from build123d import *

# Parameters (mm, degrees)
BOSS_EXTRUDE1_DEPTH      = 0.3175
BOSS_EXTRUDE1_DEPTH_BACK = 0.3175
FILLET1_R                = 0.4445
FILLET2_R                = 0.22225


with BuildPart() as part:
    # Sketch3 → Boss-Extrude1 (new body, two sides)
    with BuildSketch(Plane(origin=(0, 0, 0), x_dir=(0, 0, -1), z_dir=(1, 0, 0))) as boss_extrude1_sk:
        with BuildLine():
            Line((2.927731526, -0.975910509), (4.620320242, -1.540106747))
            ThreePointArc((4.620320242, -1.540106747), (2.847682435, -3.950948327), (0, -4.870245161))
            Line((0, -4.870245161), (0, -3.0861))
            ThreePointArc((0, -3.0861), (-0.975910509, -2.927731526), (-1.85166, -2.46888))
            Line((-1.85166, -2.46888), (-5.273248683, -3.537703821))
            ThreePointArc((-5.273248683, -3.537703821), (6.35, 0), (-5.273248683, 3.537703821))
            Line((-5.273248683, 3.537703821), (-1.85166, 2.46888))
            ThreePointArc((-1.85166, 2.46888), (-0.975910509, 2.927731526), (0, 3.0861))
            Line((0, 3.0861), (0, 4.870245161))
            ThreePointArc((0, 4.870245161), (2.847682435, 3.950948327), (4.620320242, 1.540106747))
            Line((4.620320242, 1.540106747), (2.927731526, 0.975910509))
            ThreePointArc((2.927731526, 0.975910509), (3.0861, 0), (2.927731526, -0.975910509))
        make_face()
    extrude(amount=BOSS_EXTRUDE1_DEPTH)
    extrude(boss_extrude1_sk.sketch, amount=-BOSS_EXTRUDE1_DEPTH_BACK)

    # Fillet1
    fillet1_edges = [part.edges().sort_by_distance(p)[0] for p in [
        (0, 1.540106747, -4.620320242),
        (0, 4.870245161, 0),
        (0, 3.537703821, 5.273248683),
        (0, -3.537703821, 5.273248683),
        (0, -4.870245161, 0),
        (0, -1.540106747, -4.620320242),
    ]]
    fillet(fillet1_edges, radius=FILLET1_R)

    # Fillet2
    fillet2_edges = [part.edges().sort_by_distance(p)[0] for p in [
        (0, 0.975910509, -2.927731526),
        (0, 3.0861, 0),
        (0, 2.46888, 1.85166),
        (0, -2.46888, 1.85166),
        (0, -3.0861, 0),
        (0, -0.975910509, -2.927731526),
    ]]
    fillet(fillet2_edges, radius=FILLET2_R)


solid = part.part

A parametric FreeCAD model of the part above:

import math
import FreeCAD as App
import Part
import Sketcher
from FreeCAD import Vector
Q = App.Units.Quantity


def edges_at(feature, points):
    """Names of the edges that pass closest to the given points."""
    edges = feature.Shape.Edges
    near = lambda p: min(range(len(edges)), key=lambda i: edges[i].distToShape(Part.Vertex(*p))[0])
    return sorted({f"Edge{near(p) + 1}" for p in points})

doc = App.newDocument("Part")
body = doc.addObject("PartDesign::Body", "Body")

# Sketch on YZ plane
sketch1 = body.newObject("Sketcher::SketchObject", "Sketch")
sketch1.AttachmentSupport = (doc.getObject("YZ_Plane"), [""])
sketch1.MapMode = "FlatFace"
sketch1.addGeometry([
    Part.LineSegment(Vector(-0.975911, -2.927732, 0), Vector(-1.540107, -4.62032, 0)),  # 0
    Part.ArcOfCircle(Part.Circle(Vector(0, 0, 0), Vector(0, 0, 1), 4.870245), math.radians(180), math.radians(251.565051)),  # 1
    Part.LineSegment(Vector(-4.870245, 0, 0), Vector(-3.0861, 0, 0)),  # 2
    Part.ArcOfCircle(Part.Circle(Vector(0, 0, 0), Vector(0, 0, 1), 3.0861), math.radians(143.130102), math.radians(180)),  # 3
    Part.LineSegment(Vector(-2.46888, 1.85166, 0), Vector(-3.537704, 5.273249, 0)),  # 4
    Part.ArcOfCircle(Part.Circle(Vector(0, 0, 0), Vector(0, 0, 1), 6.35), math.radians(123.856771), math.radians(416.143229)),  # 5
    Part.LineSegment(Vector(3.537704, 5.273249, 0), Vector(2.46888, 1.85166, 0)),  # 6
    Part.ArcOfCircle(Part.Circle(Vector(0, 0, 0), Vector(0, 0, 1), 3.0861), math.radians(0), math.radians(36.869898)),  # 7
    Part.LineSegment(Vector(3.0861, 0, 0), Vector(4.870245, 0, 0)),  # 8
    Part.ArcOfCircle(Part.Circle(Vector(0, 0, 0), Vector(0, 0, 1), 4.870245), math.radians(-71.565051), math.radians(0)),  # 9
    Part.LineSegment(Vector(1.540107, -4.62032, 0), Vector(0.975911, -2.927732, 0)),  # 10
    Part.ArcOfCircle(Part.Circle(Vector(0, 0, 0), Vector(0, 0, 1), 3.0861), math.radians(-108.434949), math.radians(-71.565051)),  # 11
], False)
sketch1.addConstraint([
    Sketcher.Constraint("Coincident", 0, 2, 1, 2),
    Sketcher.Constraint("Coincident", 1, 1, 2, 1),
    Sketcher.Constraint("Coincident", 2, 2, 3, 2),
    Sketcher.Constraint("Coincident", 3, 1, 4, 1),
    Sketcher.Constraint("Coincident", 4, 2, 5, 1),
    Sketcher.Constraint("Coincident", 5, 2, 6, 1),
    Sketcher.Constraint("Coincident", 6, 2, 7, 2),
    Sketcher.Constraint("Coincident", 7, 1, 8, 1),
    Sketcher.Constraint("Coincident", 8, 2, 9, 2),
    Sketcher.Constraint("Coincident", 9, 1, 10, 1),
    Sketcher.Constraint("Coincident", 10, 2, 11, 2),
    Sketcher.Constraint("Coincident", 11, 1, 0, 1),
    Sketcher.Constraint("Horizontal", 2),
    Sketcher.Constraint("Horizontal", 8),
    Sketcher.Constraint("Coincident", 1, 3, -1, 1),
    Sketcher.Constraint("Coincident", 3, 3, -1, 1),
    Sketcher.Constraint("Coincident", 5, 3, -1, 1),
    Sketcher.Constraint("Coincident", 7, 3, -1, 1),
    Sketcher.Constraint("Coincident", 9, 3, -1, 1),
    Sketcher.Constraint("Coincident", 11, 3, -1, 1),
    Sketcher.Constraint("Equal", 3, 7),
    Sketcher.Constraint("Equal", 1, 9),
    Sketcher.Constraint("Equal", 7, 11),
    Sketcher.Constraint("PointOnObject", 1, 1, -1),
    Sketcher.Constraint("PointOnObject", 7, 1, -1),
    Sketcher.Constraint("Horizontal", 4, 2, 5, 2),
    Sketcher.Constraint("Horizontal", 3, 1, 6, 2),
    Sketcher.Constraint("Horizontal", 0, 2, 9, 1),
    Sketcher.Constraint("Horizontal", 10, 2, 11, 1),
    Sketcher.Constraint("Radius", 5, Q("0.25 in")),
    Sketcher.Constraint("Radius", 3, Q("0.1215 in")),
    Sketcher.Constraint("DistanceX", 3, 1, -1, 1, Q("0.0972 in")),
    Sketcher.Constraint("Radius", 1, 4.870245),
    Sketcher.Constraint("Distance", 4, 3.584641),
    Sketcher.Constraint("DistanceY", 0, 2, -1, 1, 4.62032),
    Sketcher.Constraint("DistanceX", -1, 1, 10, 2, 0.975911),
])
pad1 = body.newObject("PartDesign::Pad", "Pad")
pad1.Profile = sketch1
pad1.Type = "TwoLengths"
pad1.Length = Q("0.0125 in")
pad1.Length2 = Q("0.0125 in")
doc.recompute()

fillet = body.newObject("PartDesign::Fillet", "Fillet")
fillet.Base = (pad1, edges_at(pad1, [
    (0, 1.54, -4.62),
    (0, 4.87, 0),
    (0, 3.538, 5.273),
    (0, -3.538, 5.273),
    (0, -4.87, 0),
    (0, -1.54, -4.62),
]))
fillet.Radius = Q("0.0175 in")
doc.recompute()

fillet2 = body.newObject("PartDesign::Fillet", "Fillet001")
fillet2.Base = (fillet, edges_at(fillet, [
    (0, 0.976, -2.928),
    (0, 3.086, 0),
    (0, 2.469, 1.852),
    (0, -2.469, 1.852),
    (0, -3.086, 0),
    (0, -0.976, -2.928),
]))
fillet2.Radius = 0.22225

doc.recompute()
